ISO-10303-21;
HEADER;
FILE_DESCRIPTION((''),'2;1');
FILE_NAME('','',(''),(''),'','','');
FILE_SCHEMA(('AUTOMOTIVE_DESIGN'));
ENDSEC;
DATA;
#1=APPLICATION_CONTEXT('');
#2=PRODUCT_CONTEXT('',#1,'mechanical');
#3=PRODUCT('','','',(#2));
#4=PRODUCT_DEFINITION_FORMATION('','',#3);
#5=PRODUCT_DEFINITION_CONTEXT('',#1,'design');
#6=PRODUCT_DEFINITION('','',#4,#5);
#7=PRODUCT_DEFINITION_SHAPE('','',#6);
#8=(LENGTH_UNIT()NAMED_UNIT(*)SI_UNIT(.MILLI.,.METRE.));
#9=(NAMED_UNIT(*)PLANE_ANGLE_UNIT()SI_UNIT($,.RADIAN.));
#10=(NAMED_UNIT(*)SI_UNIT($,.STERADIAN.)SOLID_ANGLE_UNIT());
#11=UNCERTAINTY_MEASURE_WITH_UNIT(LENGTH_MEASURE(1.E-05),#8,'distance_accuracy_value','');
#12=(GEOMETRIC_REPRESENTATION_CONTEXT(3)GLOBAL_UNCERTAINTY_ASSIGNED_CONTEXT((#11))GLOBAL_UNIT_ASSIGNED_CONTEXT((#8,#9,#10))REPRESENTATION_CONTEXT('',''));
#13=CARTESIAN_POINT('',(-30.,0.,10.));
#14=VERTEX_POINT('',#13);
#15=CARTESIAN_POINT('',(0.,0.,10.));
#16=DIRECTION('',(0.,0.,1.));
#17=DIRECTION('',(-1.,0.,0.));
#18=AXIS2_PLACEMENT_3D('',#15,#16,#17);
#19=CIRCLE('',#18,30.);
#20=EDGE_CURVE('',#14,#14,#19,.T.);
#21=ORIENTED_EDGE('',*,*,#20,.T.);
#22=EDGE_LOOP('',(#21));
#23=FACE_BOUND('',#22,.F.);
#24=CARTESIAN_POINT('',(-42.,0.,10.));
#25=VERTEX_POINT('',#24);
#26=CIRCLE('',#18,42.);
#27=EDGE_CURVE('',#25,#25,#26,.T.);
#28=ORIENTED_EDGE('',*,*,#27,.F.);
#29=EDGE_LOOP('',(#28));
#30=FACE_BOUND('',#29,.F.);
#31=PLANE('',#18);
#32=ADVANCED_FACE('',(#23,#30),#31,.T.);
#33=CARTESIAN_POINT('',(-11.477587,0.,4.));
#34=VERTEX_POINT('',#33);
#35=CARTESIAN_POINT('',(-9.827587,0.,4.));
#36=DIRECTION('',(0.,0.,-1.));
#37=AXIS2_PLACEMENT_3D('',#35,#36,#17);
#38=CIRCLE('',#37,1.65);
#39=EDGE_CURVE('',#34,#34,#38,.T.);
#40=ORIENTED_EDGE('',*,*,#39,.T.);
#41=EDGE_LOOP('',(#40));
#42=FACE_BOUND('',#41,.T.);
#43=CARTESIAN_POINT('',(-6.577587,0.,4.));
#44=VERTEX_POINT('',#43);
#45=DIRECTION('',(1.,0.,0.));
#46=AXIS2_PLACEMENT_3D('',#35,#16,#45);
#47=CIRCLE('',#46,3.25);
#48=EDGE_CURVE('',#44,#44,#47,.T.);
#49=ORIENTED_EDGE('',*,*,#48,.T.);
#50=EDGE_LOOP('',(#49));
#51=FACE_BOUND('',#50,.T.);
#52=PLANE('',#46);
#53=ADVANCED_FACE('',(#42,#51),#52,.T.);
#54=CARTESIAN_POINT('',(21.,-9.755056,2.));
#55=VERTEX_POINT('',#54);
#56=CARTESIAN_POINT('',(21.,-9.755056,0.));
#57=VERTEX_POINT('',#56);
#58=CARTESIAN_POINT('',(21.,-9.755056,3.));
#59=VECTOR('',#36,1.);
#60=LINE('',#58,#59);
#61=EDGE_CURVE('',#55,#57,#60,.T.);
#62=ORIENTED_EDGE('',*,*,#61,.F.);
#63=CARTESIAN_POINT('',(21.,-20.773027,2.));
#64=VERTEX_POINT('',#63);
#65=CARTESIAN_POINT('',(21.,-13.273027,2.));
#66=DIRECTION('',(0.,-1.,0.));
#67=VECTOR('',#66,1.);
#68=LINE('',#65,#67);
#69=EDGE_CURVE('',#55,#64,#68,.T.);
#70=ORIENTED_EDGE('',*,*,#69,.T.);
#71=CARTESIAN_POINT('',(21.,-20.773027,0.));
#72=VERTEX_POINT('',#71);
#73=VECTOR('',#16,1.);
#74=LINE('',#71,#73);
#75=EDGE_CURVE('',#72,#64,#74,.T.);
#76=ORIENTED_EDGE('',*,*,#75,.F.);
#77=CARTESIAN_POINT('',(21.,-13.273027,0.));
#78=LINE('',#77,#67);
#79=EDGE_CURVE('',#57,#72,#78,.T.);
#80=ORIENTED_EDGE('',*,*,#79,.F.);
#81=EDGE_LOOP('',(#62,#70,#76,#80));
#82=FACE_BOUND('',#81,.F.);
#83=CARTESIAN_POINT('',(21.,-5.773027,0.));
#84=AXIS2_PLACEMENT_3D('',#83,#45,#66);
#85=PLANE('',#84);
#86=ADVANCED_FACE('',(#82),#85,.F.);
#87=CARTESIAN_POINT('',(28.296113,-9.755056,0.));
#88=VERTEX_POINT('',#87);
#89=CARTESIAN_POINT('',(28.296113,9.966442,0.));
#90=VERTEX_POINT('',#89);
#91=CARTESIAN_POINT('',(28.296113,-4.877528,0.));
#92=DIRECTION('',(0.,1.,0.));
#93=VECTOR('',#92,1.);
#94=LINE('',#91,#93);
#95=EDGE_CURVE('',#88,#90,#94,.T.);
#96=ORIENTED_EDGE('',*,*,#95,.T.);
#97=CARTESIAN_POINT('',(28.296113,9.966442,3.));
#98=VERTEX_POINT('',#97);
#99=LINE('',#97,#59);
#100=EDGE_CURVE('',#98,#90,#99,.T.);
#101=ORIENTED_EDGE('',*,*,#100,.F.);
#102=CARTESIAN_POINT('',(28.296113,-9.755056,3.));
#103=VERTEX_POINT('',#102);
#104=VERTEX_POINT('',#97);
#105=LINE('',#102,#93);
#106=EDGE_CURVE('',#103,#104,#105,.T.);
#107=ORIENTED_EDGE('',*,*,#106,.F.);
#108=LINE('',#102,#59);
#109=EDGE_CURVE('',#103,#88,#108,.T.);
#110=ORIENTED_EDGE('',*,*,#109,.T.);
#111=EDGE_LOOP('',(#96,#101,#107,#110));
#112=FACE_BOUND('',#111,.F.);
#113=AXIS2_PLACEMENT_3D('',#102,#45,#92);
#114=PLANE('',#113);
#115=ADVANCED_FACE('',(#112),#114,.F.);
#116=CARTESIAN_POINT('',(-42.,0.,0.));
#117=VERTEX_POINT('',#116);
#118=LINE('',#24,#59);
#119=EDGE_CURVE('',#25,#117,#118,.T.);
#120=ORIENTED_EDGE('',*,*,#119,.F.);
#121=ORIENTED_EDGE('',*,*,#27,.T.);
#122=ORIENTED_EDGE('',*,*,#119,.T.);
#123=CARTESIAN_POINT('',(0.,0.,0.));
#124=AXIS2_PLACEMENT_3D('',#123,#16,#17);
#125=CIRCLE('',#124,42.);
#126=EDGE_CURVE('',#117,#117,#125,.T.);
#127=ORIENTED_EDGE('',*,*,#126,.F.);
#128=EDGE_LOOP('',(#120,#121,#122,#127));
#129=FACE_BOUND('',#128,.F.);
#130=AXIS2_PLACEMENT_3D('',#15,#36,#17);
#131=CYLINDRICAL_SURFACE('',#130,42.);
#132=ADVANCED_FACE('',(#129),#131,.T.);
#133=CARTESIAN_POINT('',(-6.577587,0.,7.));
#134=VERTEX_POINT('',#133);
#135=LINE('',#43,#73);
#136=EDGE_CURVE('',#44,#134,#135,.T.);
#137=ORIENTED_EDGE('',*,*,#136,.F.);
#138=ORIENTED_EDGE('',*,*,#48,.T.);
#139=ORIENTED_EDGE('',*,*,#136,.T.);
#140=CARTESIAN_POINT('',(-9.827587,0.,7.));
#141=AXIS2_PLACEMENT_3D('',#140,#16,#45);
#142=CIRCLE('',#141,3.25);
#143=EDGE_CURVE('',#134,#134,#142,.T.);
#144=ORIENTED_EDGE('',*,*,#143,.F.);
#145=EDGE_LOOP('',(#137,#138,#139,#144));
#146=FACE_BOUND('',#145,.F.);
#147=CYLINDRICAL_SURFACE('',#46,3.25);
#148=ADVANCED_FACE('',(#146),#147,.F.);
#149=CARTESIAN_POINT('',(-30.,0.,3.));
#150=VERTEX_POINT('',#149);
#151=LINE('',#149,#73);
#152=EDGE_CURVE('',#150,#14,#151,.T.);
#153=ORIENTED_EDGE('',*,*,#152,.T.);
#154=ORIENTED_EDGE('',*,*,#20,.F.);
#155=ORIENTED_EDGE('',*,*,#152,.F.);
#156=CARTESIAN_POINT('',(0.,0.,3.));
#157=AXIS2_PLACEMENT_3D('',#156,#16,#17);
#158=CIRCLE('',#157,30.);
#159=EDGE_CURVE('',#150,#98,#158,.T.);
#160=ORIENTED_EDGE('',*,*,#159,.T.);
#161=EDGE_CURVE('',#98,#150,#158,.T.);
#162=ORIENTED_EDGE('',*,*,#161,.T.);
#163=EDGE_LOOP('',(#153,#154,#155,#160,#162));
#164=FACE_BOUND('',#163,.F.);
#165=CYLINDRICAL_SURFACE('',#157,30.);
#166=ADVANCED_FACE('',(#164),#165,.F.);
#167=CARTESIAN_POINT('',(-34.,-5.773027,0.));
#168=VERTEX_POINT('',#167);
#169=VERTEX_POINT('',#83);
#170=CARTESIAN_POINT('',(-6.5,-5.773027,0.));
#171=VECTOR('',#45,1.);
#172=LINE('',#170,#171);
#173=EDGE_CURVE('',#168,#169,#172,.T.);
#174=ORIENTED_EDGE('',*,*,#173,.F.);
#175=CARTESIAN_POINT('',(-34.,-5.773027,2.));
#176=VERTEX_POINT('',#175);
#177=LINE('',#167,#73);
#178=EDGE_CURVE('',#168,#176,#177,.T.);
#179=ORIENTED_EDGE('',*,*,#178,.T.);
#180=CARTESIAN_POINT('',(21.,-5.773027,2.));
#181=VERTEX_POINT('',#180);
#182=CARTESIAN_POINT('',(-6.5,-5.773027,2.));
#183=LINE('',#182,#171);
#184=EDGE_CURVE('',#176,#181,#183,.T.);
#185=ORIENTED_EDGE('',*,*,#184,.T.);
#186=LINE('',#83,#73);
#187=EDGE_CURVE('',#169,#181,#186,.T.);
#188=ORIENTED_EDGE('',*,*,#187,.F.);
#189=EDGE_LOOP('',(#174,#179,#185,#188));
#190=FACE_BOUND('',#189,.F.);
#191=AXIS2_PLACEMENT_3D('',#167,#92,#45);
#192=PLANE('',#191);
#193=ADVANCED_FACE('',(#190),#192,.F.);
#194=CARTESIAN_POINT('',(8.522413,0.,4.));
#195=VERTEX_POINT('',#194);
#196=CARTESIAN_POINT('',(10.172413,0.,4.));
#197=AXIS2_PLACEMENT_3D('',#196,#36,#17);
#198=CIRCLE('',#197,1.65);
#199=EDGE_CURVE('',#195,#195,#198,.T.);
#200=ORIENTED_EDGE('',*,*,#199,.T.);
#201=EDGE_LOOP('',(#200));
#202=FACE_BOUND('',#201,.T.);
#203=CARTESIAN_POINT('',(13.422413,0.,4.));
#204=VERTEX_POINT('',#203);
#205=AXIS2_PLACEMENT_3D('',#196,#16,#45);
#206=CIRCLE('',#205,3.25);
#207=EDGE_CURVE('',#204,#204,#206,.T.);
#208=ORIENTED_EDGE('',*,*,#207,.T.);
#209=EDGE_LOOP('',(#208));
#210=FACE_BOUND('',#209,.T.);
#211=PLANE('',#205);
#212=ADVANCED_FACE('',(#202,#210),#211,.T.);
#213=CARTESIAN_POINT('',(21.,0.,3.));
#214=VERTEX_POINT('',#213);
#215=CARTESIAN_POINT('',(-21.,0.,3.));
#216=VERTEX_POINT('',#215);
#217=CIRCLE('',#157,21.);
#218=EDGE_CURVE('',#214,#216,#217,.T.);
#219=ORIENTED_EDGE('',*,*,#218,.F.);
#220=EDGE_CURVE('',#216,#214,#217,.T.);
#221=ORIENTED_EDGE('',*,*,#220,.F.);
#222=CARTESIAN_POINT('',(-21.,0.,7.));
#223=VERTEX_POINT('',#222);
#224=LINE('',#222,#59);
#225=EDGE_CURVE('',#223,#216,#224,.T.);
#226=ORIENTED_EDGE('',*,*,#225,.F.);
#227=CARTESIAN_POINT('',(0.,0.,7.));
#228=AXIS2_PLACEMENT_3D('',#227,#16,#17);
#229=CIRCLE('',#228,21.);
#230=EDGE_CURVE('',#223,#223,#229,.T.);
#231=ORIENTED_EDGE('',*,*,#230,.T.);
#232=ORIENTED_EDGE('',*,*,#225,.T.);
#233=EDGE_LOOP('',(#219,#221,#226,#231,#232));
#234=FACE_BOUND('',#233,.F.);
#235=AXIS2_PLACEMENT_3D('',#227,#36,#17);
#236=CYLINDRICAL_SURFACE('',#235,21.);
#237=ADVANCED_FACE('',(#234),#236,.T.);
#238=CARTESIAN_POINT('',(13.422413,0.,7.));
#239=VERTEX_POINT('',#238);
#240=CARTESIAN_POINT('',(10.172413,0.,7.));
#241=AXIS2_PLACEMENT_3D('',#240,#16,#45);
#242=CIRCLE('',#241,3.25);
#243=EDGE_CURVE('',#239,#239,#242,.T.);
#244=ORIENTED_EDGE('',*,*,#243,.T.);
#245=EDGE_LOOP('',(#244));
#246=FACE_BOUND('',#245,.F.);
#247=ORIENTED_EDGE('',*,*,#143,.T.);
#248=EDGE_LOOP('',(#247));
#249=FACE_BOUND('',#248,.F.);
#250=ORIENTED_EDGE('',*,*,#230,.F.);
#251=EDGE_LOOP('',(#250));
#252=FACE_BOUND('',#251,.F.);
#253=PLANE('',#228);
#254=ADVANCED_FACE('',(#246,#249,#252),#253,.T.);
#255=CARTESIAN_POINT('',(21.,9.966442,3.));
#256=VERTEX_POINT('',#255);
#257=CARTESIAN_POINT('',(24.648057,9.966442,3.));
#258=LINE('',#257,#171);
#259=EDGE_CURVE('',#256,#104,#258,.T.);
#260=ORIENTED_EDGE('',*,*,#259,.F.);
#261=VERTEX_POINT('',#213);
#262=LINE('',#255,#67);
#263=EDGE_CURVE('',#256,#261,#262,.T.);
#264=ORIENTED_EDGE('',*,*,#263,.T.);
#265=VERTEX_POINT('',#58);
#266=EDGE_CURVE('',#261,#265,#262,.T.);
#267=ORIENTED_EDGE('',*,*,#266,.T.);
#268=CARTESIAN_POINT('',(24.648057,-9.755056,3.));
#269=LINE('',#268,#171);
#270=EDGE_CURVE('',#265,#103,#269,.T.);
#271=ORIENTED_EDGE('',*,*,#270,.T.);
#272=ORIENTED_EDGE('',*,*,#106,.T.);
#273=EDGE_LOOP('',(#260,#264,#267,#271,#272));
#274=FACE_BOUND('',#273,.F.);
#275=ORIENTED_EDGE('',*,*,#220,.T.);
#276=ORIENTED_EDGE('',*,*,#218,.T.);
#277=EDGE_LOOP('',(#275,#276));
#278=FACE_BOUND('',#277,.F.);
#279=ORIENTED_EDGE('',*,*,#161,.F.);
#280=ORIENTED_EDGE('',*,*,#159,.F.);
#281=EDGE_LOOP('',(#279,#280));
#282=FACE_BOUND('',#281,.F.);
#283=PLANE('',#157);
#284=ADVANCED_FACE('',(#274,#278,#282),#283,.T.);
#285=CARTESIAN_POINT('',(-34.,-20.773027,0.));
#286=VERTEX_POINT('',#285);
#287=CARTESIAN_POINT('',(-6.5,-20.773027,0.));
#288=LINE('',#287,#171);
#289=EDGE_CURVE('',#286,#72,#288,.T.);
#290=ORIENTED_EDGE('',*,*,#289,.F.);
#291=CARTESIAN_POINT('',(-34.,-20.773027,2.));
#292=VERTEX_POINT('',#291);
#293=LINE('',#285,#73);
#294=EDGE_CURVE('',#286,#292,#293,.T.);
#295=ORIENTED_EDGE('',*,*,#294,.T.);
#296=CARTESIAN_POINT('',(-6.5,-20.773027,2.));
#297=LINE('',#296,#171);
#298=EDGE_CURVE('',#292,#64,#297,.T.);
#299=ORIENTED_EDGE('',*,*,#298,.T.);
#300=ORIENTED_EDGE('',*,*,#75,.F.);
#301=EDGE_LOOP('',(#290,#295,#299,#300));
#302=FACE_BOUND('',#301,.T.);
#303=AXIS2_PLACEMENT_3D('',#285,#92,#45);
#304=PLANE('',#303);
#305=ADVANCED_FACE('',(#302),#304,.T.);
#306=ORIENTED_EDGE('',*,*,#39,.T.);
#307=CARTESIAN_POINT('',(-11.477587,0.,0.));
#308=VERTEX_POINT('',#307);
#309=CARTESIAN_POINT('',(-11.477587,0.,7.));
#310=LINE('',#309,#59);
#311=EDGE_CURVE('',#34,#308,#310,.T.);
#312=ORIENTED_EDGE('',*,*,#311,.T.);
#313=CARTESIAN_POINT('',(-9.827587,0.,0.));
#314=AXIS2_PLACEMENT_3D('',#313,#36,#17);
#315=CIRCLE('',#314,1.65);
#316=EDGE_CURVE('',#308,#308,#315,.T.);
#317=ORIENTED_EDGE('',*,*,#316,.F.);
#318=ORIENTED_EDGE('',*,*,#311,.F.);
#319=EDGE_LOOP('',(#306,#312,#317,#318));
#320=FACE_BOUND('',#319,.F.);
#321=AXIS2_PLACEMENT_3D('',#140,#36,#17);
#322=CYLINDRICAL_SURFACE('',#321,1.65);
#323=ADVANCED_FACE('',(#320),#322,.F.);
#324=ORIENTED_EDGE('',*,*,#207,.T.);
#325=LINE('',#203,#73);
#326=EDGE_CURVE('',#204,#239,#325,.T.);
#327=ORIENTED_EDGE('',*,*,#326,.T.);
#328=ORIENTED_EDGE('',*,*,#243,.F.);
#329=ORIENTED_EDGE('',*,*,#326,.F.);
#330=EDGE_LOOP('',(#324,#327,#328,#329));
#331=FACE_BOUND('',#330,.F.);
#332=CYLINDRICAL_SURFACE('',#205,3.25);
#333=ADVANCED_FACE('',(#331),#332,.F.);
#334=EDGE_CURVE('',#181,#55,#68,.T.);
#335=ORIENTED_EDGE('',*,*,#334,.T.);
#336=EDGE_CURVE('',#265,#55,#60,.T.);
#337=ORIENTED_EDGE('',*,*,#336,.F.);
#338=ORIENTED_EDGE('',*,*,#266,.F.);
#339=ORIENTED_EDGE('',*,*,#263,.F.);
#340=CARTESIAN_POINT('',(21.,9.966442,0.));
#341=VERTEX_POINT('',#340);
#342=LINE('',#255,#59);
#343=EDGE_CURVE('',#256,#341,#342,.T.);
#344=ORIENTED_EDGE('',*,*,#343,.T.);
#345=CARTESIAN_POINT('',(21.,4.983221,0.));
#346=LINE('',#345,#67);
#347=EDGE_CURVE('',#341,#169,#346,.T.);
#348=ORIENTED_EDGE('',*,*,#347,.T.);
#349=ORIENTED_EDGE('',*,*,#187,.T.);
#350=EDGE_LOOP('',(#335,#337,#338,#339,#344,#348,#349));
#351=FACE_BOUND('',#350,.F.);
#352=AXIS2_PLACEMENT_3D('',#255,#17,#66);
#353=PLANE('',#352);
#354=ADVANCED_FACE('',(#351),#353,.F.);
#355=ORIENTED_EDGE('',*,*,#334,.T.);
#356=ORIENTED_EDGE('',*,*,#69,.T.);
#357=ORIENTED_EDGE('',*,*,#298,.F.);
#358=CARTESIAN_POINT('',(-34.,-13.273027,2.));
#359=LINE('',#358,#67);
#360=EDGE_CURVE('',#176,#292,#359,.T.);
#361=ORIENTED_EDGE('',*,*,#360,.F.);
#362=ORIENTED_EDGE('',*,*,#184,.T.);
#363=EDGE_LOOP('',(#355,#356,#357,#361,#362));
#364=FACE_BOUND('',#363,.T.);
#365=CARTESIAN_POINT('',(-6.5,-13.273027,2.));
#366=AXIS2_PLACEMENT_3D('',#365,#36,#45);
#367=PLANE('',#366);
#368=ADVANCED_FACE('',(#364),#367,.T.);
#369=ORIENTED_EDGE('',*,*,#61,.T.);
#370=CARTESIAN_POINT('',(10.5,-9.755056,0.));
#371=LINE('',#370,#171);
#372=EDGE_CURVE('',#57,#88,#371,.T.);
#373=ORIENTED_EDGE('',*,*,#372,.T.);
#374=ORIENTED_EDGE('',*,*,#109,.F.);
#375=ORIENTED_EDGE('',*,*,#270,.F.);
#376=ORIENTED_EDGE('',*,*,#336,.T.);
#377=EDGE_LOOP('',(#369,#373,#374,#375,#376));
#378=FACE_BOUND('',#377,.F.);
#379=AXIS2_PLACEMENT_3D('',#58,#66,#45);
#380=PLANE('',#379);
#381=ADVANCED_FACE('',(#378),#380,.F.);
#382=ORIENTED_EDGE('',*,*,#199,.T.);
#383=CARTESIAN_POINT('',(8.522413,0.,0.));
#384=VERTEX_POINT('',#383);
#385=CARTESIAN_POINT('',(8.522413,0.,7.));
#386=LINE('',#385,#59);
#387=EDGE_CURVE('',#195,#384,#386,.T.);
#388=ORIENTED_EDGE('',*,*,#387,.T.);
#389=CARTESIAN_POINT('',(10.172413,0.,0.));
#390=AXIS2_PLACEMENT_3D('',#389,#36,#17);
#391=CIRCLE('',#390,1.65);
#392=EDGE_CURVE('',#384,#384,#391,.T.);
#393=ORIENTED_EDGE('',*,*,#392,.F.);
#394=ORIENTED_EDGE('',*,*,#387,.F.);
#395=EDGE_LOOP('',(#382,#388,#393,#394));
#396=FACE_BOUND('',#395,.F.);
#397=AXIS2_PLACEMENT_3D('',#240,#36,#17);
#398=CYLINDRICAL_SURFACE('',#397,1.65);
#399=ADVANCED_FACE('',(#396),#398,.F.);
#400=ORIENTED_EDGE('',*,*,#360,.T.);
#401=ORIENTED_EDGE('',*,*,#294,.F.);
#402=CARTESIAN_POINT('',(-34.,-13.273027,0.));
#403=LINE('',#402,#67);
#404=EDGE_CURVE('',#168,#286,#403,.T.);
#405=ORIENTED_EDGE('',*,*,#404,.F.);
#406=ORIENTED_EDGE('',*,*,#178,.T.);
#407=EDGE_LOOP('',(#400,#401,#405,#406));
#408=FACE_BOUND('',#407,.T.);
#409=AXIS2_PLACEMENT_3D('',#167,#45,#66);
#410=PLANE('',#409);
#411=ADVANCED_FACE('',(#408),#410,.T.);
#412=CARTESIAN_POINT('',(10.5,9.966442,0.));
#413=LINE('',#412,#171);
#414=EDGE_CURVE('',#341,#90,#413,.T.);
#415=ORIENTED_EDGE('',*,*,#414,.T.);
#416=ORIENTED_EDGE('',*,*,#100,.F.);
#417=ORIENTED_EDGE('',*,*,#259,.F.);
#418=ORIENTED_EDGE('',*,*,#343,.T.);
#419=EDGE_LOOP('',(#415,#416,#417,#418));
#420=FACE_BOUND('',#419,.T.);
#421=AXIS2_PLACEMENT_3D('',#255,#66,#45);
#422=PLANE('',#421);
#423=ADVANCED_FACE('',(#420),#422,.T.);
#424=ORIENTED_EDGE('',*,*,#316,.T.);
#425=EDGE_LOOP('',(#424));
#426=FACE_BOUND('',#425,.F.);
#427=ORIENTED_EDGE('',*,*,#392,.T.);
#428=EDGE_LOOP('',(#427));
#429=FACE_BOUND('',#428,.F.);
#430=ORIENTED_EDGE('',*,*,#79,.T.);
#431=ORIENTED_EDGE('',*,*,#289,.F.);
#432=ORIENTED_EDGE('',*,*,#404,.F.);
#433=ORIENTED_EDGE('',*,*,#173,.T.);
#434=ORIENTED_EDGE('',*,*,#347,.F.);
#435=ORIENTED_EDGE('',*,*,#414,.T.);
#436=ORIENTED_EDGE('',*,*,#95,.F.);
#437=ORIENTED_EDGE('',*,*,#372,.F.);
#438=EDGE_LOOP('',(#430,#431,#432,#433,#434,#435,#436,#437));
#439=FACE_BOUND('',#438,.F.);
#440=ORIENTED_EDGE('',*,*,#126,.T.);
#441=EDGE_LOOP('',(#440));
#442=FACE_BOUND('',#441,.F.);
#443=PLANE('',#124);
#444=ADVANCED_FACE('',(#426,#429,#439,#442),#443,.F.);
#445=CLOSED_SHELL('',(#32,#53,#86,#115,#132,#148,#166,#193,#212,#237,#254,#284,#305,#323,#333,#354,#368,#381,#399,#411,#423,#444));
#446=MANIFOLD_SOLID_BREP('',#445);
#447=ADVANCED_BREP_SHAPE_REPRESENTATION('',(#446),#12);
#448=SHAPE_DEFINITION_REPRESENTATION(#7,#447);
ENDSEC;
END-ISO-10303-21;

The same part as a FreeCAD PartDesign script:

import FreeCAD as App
import Part
import Sketcher
from FreeCAD import Vector

doc = App.newDocument("Part")
body = doc.addObject("PartDesign::Body", "Body")

# Sketch on XZ plane
sketch1 = body.newObject("Sketcher::SketchObject", "Sketch")
sketch1.AttachmentSupport = (doc.getObject("XZ_Plane"), [""])
sketch1.MapMode = "FlatFace"
sketch1.addGeometry([
    Part.LineSegment(Vector(-42, 0, 0), Vector(0, 0, 0)),  # 0
    Part.LineSegment(Vector(0, 0, 0), Vector(0, 7, 0)),  # 1
    Part.LineSegment(Vector(0, 7, 0), Vector(-21, 7, 0)),  # 2
    Part.LineSegment(Vector(-21, 7, 0), Vector(-21, 3, 0)),  # 3
    Part.LineSegment(Vector(-21, 3, 0), Vector(-30, 3, 0)),  # 4
    Part.LineSegment(Vector(-30, 3, 0), Vector(-30, 10, 0)),  # 5
    Part.LineSegment(Vector(-30, 10, 0), Vector(-42, 10, 0)),  # 6
    Part.LineSegment(Vector(-42, 10, 0), Vector(-42, 0, 0)),  # 7
], False)
sketch1.addConstraint([
    Sketcher.Constraint("Coincident", 0, 2, 1, 1),
    Sketcher.Constraint("Coincident", 1, 2, 2, 1),
    Sketcher.Constraint("Coincident", 2, 2, 3, 1),
    Sketcher.Constraint("Coincident", 3, 2, 4, 1),
    Sketcher.Constraint("Coincident", 4, 2, 5, 1),
    Sketcher.Constraint("Coincident", 5, 2, 6, 1),
    Sketcher.Constraint("Coincident", 6, 2, 7, 1),
    Sketcher.Constraint("Coincident", 7, 2, 0, 1),
    Sketcher.Constraint("Horizontal", 0),
    Sketcher.Constraint("Vertical", 1),
    Sketcher.Constraint("Horizontal", 2),
    Sketcher.Constraint("Vertical", 3),
    Sketcher.Constraint("Horizontal", 4),
    Sketcher.Constraint("Vertical", 5),
    Sketcher.Constraint("Horizontal", 6),
    Sketcher.Constraint("Vertical", 7),
    Sketcher.Constraint("Coincident", 0, 2, -1, 1),
    Sketcher.Constraint("Equal", 1, 5),
    Sketcher.Constraint("DistanceX", 0, 1, 0, 2, 42.0),
    Sketcher.Constraint("DistanceX", 2, 2, 2, 1, 21.0),
    Sketcher.Constraint("DistanceX", 4, 2, 4, 1, 9.0),
    Sketcher.Constraint("DistanceY", 1, 1, 1, 2, 7.0),
    Sketcher.Constraint("DistanceY", 3, 2, 3, 1, 4.0),
])
revolution = body.newObject("PartDesign::Revolution", "Revolution")
revolution.Profile = sketch1
revolution.ReferenceAxis = (sketch1, ["V_Axis"])
revolution.Angle = 360

# Sketch on XY plane
sketch2 = body.newObject("Sketcher::SketchObject", "Sketch001")
sketch2.AttachmentSupport = (doc.getObject("XY_Plane"), [""])
sketch2.MapMode = "FlatFace"
sketch2.AttachmentOffset = App.Placement(Vector(0, 0, 3), App.Rotation())
sketch2.addGeometry([
    Part.LineSegment(Vector(21, 10, 0), Vector(21, -10, 0)),
    Part.LineSegment(Vector(21, -10, 0), Vector(28, -10, 0)),
    Part.LineSegment(Vector(28, -10, 0), Vector(28, 10, 0)),
    Part.LineSegment(Vector(28, 10, 0), Vector(21, 10, 0)),
], False)
sketch2.addConstraint([
    Sketcher.Constraint("Coincident", 0, 2, 1, 1),
    Sketcher.Constraint("Coincident", 1, 2, 2, 1),
    Sketcher.Constraint("Coincident", 2, 2, 3, 1),
    Sketcher.Constraint("Coincident", 3, 2, 0, 1),
    Sketcher.Constraint("Vertical", 0),
    Sketcher.Constraint("Horizontal", 1),
    Sketcher.Constraint("Vertical", 2),
    Sketcher.Constraint("Horizontal", 3),
    Sketcher.Constraint("DistanceX", -1, 1, 0, 2, 21.0),
    Sketcher.Constraint("DistanceY", 0, 2, 0, 1, 19.721499),
    Sketcher.Constraint("DistanceX", 1, 1, 1, 2, 7.296113),
    Sketcher.Constraint("DistanceY", 0, 2, -1, 1, 9.755056),
])
pocket1 = body.newObject("PartDesign::Pocket", "Pocket")
pocket1.Profile = sketch2
pocket1.Length = 25

# Sketch on XY plane
sketch3 = body.newObject("Sketcher::SketchObject", "Sketch002")
sketch3.AttachmentSupport = (doc.getObject("XY_Plane"), [""])
sketch3.MapMode = "FlatFace"
sketch3.addGeometry([
    Part.LineSegment(Vector(-34, -21, 0), Vector(-34, -6, 0)),
    Part.LineSegment(Vector(-34, -6, 0), Vector(21, -6, 0)),
    Part.LineSegment(Vector(21, -6, 0), Vector(21, -21, 0)),
    Part.LineSegment(Vector(21, -21, 0), Vector(-34, -21, 0)),
], False)
sketch3.addConstraint([
    Sketcher.Constraint("Coincident", 0, 2, 1, 1),
    Sketcher.Constraint("Coincident", 1, 2, 2, 1),
    Sketcher.Constraint("Coincident", 2, 2, 3, 1),
    Sketcher.Constraint("Coincident", 3, 2, 0, 1),
    Sketcher.Constraint("Vertical", 0),
    Sketcher.Constraint("Horizontal", 1),
    Sketcher.Constraint("Vertical", 2),
    Sketcher.Constraint("Horizontal", 3),
    Sketcher.Constraint("DistanceX", 1, 1, 1, 2, 55.0),
    Sketcher.Constraint("DistanceY", 0, 1, 0, 2, 15.0),
    Sketcher.Constraint("DistanceX", 0, 2, -1, 1, 34.0),
    Sketcher.Constraint("DistanceY", 0, 2, -1, 1, 5.773027),
])
pocket2 = body.newObject("PartDesign::Pocket", "Pocket001")
pocket2.Profile = sketch3
pocket2.Length = 2
pocket2.Reversed = True

# Sketch on XY plane
sketch4 = body.newObject("Sketcher::SketchObject", "Sketch003")
sketch4.AttachmentSupport = (doc.getObject("XY_Plane"), [""])
sketch4.MapMode = "FlatFace"
sketch4.AttachmentOffset = App.Placement(Vector(0, 0, 7), App.Rotation())
sketch4.addGeometry([
    Part.Circle(Vector(-9.8, 0, 0), Vector(0, 0, 1), 1.6),
    Part.Circle(Vector(10.2, 0, 0), Vector(0, 0, 1), 1.6),
], False)
sketch4.addConstraint([
    Sketcher.Constraint("Equal", 0, 1),
    Sketcher.Constraint("PointOnObject", 0, 3, -1),
    Sketcher.Constraint("PointOnObject", 1, 3, -1),
    Sketcher.Constraint("Diameter", 0, 3.3),
    Sketcher.Constraint("DistanceX", 0, 3, 1, 3, 20.0),
    Sketcher.Constraint("DistanceX", 0, 3, -1, 1, 9.827587),
])
doc.recompute()
hole = body.newObject("PartDesign::Hole", "Hole")
hole.Profile = sketch4
hole.ThreadType = "None"
hole.Diameter = 3.3
hole.DepthType = "ThroughAll"
hole.HoleCutType = "Counterbore"
hole.HoleCutDiameter = 6.5
hole.HoleCutDepth = 3

doc.recompute()
